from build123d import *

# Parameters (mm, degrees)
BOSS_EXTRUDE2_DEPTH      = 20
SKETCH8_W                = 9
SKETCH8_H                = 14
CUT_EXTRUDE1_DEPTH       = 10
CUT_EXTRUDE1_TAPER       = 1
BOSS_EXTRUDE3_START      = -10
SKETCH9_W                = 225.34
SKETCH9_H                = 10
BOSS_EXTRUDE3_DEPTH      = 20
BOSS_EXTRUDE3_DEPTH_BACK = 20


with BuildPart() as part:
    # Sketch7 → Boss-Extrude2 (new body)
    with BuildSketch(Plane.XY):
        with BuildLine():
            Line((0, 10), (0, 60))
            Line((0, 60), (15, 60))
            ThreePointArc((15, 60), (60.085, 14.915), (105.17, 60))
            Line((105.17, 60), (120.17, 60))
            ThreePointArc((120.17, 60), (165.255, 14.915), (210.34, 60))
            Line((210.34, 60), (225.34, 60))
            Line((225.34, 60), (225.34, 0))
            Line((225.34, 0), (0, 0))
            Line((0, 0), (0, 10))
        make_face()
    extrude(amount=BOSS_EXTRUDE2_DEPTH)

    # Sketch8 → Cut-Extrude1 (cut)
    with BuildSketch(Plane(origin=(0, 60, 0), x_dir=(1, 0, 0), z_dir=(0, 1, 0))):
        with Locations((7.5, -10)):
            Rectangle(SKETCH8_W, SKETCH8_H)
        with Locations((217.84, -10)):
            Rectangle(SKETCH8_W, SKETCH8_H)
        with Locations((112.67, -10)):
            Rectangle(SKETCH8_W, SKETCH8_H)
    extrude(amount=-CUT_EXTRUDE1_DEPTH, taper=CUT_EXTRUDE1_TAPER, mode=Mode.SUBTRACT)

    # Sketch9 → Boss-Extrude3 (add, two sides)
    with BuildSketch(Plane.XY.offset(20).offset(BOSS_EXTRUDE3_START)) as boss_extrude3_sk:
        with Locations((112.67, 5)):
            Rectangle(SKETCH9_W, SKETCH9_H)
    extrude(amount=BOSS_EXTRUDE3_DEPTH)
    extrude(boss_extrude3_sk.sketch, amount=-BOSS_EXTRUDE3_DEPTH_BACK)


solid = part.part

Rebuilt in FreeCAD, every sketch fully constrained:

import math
import FreeCAD as App
import Part
import Sketcher
from FreeCAD import Vector
Q = App.Units.Quantity

doc = App.newDocument("Part")
body = doc.addObject("PartDesign::Body", "Body")

# Sketch on XY plane
sketch1 = doc.addObject("Sketcher::SketchObject", "Sketch")
body.addObject(sketch1)
sketch1.AttachmentSupport = (doc.XY_Plane, [""])
sketch1.MapMode = "FlatFace"
sketch1.addGeometry([
    Part.LineSegment(Vector(15, 60, 0), Vector(0, 60, 0)),  # 0
    Part.LineSegment(Vector(0, 60, 0), Vector(0, 0, 0)),  # 1
    Part.LineSegment(Vector(0, 0, 0), Vector(225, 0, 0)),  # 2
    Part.LineSegment(Vector(225, 0, 0), Vector(225, 60, 0)),  # 3
    Part.LineSegment(Vector(225, 60, 0), Vector(210, 60, 0)),  # 4
    Part.ArcOfCircle(Part.Circle(Vector(165, 60, 0), Vector(0, 0, 1), 45), math.radians(180), math.radians(360)),  # 5
    Part.LineSegment(Vector(120, 60, 0), Vector(105, 60, 0)),  # 6
    Part.ArcOfCircle(Part.Circle(Vector(60, 60, 0), Vector(0, 0, 1), 45), math.radians(180), math.radians(360)),  # 7
], False)
sketch1.addConstraint([
    Sketcher.Constraint("Coincident", 0, 2, 1, 1),
    Sketcher.Constraint("Coincident", 1, 2, 2, 1),
    Sketcher.Constraint("Coincident", 2, 2, 3, 1),
    Sketcher.Constraint("Coincident", 3, 2, 4, 1),
    Sketcher.Constraint("Coincident", 4, 2, 5, 2),
    Sketcher.Constraint("Coincident", 5, 1, 6, 1),
    Sketcher.Constraint("Coincident", 6, 2, 7, 2),
    Sketcher.Constraint("Coincident", 7, 1, 0, 1),
    Sketcher.Constraint("Horizontal", 0),
    Sketcher.Constraint("Vertical", 1),
    Sketcher.Constraint("Horizontal", 2),
    Sketcher.Constraint("Vertical", 3),
    Sketcher.Constraint("Horizontal", 4),
    Sketcher.Constraint("Horizontal", 6),
    Sketcher.Constraint("Coincident", 1, 2, -1, 1),
    Sketcher.Constraint("Equal", 5, 7),
    Sketcher.Constraint("Horizontal", 5, 3, 7, 3),
    Sketcher.Constraint("Horizontal", 7, 3, 0, 2),
    Sketcher.Constraint("Horizontal", 0, 2, 3, 2),
    Sketcher.Constraint("Horizontal", 4, 2, 5, 1),
    Sketcher.Constraint("Equal", 0, 4),
    Sketcher.Constraint("Equal", 4, 6),
    Sketcher.Constraint("DistanceX", 0, 2, 0, 1, Q("15 mm")),
    Sketcher.Constraint("DistanceY", 1, 2, 1, 1, Q("60 mm")),
    Sketcher.Constraint("Radius", 5, Q("45.085 mm")),
])
pad1 = doc.addObject("PartDesign::Pad", "Pad")
body.addObject(pad1)
pad1.Profile = sketch1
pad1.Length = 20

# Sketch on XZ plane
sketch2 = doc.addObject("Sketcher::SketchObject", "Sketch001")
body.addObject(sketch2)
sketch2.AttachmentSupport = (doc.XZ_Plane, [""])
sketch2.MapMode = "FlatFace"
sketch2.AttachmentOffset = App.Placement(Vector(0, 0, -60), App.Rotation())
sketch2.addGeometry([
    Part.LineSegment(Vector(3, 3, 0), Vector(3, 17, 0)),  # 0
    Part.LineSegment(Vector(3, 17, 0), Vector(12, 17, 0)),  # 1
    Part.LineSegment(Vector(12, 17, 0), Vector(12, 3, 0)),  # 2
    Part.LineSegment(Vector(12, 3, 0), Vector(3, 3, 0)),  # 3
    Part.LineSegment(Vector(213, 3, 0), Vector(213, 17, 0)),  # 4
    Part.LineSegment(Vector(213, 17, 0), Vector(222, 17, 0)),  # 5
    Part.LineSegment(Vector(222, 17, 0), Vector(222, 3, 0)),  # 6
    Part.LineSegment(Vector(222, 3, 0), Vector(213, 3, 0)),  # 7
    Part.LineSegment(Vector(108, 3, 0), Vector(108, 17, 0)),  # 8
    Part.LineSegment(Vector(108, 17, 0), Vector(117, 17, 0)),  # 9
    Part.LineSegment(Vector(117, 17, 0), Vector(117, 3, 0)),  # 10
    Part.LineSegment(Vector(117, 3, 0), Vector(108, 3, 0)),  # 11
], False)
sketch2.addConstraint([
    Sketcher.Constraint("Coincident", 0, 2, 1, 1),
    Sketcher.Constraint("Coincident", 1, 2, 2, 1),
    Sketcher.Constraint("Coincident", 2, 2, 3, 1),
    Sketcher.Constraint("Coincident", 3, 2, 0, 1),
    Sketcher.Constraint("Coincident", 4, 2, 5, 1),
    Sketcher.Constraint("Coincident", 5, 2, 6, 1),
    Sketcher.Constraint("Coincident", 6, 2, 7, 1),
    Sketcher.Constraint("Coincident", 7, 2, 4, 1),
    Sketcher.Constraint("Coincident", 8, 2, 9, 1),
    Sketcher.Constraint("Coincident", 9, 2, 10, 1),
    Sketcher.Constraint("Coincident", 10, 2, 11, 1),
    Sketcher.Constraint("Coincident", 11, 2, 8, 1),
    Sketcher.Constraint("Vertical", 0),
    Sketcher.Constraint("Horizontal", 1),
    Sketcher.Constraint("Vertical", 2),
    Sketcher.Constraint("Horizontal", 3),
    Sketcher.Constraint("Vertical", 4),
    Sketcher.Constraint("Horizontal", 5),
    Sketcher.Constraint("Vertical", 6),
    Sketcher.Constraint("Horizontal", 7),
    Sketcher.Constraint("Vertical", 8),
    Sketcher.Constraint("Horizontal", 9),
    Sketcher.Constraint("Vertical", 10),
    Sketcher.Constraint("Horizontal", 11),
    Sketcher.Constraint("Horizontal", 1, 2, 4, 2),
    Sketcher.Constraint("Horizontal", 3, 2, 6, 2),
    Sketcher.Constraint("Horizontal", 5, 2, 8, 2),
    Sketcher.Constraint("Horizontal", 7, 2, 10, 2),
    Sketcher.Constraint("Equal", 3, 5),
    Sketcher.Constraint("Equal", 7, 9),
    Sketcher.Constraint("DistanceX", 1, 1, 1, 2, Q("9 mm")),
    Sketcher.Constraint("DistanceY", 0, 1, 0, 2, Q("14 mm")),
    Sketcher.Constraint("DistanceX", -1, 1, 0, 2, Q("3 mm")),
    Sketcher.Constraint("DistanceY", -1, 1, 0, 2, Q("17 mm")),
    Sketcher.Constraint("DistanceX", -1, 1, 4, 2, Q("213.34 mm")),
    Sketcher.Constraint("DistanceX", -1, 1, 8, 2, Q("108.17 mm")),
])
pocket1 = doc.addObject("PartDesign::Pocket", "Pocket")
body.addObject(pocket1)
pocket1.Profile = sketch2
pocket1.Length = 10
pocket1.Reversed = True
pocket1.TaperAngle = -1

# Sketch on XY plane
sketch3 = doc.addObject("Sketcher::SketchObject", "Sketch002")
body.addObject(sketch3)
sketch3.AttachmentSupport = (doc.XY_Plane, [""])
sketch3.MapMode = "FlatFace"
sketch3.AttachmentOffset = App.Placement(Vector(0, 0, 10), App.Rotation())
sketch3.addGeometry([
    Part.LineSegment(Vector(0, 10, 0), Vector(0, 0, 0)),
    Part.LineSegment(Vector(0, 0, 0), Vector(225, 0, 0)),
    Part.LineSegment(Vector(225, 0, 0), Vector(225, 10, 0)),
    Part.LineSegment(Vector(225, 10, 0), Vector(0, 10, 0)),
], False)
sketch3.addConstraint([
    Sketcher.Constraint("Coincident", 0, 2, 1, 1),
    Sketcher.Constraint("Coincident", 1, 2, 2, 1),
    Sketcher.Constraint("Coincident", 2, 2, 3, 1),
    Sketcher.Constraint("Coincident", 3, 2, 0, 1),
    Sketcher.Constraint("Vertical", 0),
    Sketcher.Constraint("Horizontal", 1),
    Sketcher.Constraint("Vertical", 2),
    Sketcher.Constraint("Horizontal", 3),
    Sketcher.Constraint("Coincident", 0, 2, -1, 1),
    Sketcher.Constraint("DistanceY", 0, 2, 0, 1, Q("10 mm")),
    Sketcher.Constraint("DistanceX", 1, 1, 1, 2, Q("225.34 mm")),
])
pad2 = doc.addObject("PartDesign::Pad", "Pad001")
body.addObject(pad2)
pad2.Profile = sketch3
pad2.Type = "TwoLengths"
pad2.Length = 20
pad2.Length2 = 20

doc.recompute()
